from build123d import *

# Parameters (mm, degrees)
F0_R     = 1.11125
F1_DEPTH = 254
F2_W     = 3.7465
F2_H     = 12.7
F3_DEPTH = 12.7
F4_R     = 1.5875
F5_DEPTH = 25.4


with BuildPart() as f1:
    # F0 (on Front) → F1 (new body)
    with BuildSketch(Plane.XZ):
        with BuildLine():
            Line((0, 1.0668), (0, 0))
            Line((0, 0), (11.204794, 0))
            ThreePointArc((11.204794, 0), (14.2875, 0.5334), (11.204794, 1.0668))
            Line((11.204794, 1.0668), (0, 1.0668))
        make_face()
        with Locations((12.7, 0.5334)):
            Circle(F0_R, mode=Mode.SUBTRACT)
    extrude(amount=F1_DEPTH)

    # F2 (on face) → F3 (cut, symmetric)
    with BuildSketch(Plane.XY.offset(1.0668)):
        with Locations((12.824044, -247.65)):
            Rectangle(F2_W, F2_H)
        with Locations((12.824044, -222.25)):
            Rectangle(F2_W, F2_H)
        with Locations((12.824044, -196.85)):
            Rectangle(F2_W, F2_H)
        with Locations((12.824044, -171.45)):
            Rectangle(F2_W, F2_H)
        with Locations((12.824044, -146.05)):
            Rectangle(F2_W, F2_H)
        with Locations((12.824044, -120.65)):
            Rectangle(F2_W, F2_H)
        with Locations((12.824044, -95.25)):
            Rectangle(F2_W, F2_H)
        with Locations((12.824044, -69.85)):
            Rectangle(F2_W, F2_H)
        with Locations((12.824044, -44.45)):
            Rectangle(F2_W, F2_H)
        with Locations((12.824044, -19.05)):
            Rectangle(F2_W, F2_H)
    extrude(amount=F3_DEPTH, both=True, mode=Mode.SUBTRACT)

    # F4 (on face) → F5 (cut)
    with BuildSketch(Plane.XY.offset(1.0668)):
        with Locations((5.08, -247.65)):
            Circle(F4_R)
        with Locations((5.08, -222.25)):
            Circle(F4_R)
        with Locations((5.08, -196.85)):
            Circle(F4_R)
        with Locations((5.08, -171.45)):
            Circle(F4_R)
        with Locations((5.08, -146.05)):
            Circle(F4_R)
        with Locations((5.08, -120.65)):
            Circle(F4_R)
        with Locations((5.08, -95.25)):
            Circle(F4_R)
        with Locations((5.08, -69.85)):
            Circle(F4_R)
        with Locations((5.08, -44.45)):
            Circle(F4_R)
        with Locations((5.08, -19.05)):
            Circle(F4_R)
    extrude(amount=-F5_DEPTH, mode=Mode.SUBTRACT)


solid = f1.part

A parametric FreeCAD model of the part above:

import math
import FreeCAD as App
import Part
import Sketcher
from FreeCAD import Vector
Q = App.Units.Quantity


def add_polygon(sketch, points):
    """Adds a closed chain of lines whose ends are joined by coincident constraints."""
    first, n = sketch.GeometryCount, len(points)
    for a, b in zip(points, points[1:] + points[:1]):
        sketch.addGeometry(Part.LineSegment(App.Vector(*a, 0), App.Vector(*b, 0)), False)
    for i in range(n):
        sketch.addConstraint(Sketcher.Constraint("Coincident", first + i, 2, first + (i + 1) % n, 1))

doc = App.newDocument("Part")
body = doc.addObject("PartDesign::Body", "Body")

sketch1 = doc.addObject("Sketcher::SketchObject", "Sketch")
body.addObject(sketch1)
sketch1.AttachmentSupport = (doc.XZ_Plane, [""])
sketch1.MapMode = "FlatFace"
sketch1.addGeometry(Part.LineSegment(Vector(0, 1.1, 0), Vector(0, 0, 0)), False)
sketch1.addGeometry(Part.LineSegment(Vector(0, 0, 0), Vector(11.2, 0, 0)), False)
sketch1.addGeometry(Part.ArcOfCircle(Part.Circle(Vector(12.7, 0.5, 0), Vector(0, 0, 1), 1.6), math.radians(-160), math.radians(160)), False)
sketch1.addGeometry(Part.LineSegment(Vector(11.2, 1.1, 0), Vector(0, 1.1, 0)), False)
sketch1.addGeometry(Part.Circle(Vector(12.7, 0.5, 0), Vector(0, 0, 1), 1.1), False)
sketch1.addConstraint(Sketcher.Constraint("Coincident", 0, 2, 1, 1))
sketch1.addConstraint(Sketcher.Constraint("Coincident", 1, 2, 2, 1))
sketch1.addConstraint(Sketcher.Constraint("Coincident", 2, 2, 3, 1))
sketch1.addConstraint(Sketcher.Constraint("Coincident", 3, 2, 0, 1))
sketch1.addConstraint(Sketcher.Constraint("Vertical", 0))
sketch1.addConstraint(Sketcher.Constraint("Horizontal", 1))
sketch1.addConstraint(Sketcher.Constraint("Horizontal", 3))
sketch1.addConstraint(Sketcher.Constraint("Coincident", 0, 2, -1, 1))
sketch1.addConstraint(Sketcher.Constraint("Coincident", 4, 3, 2, 3))
sketch1.addConstraint(Sketcher.Constraint("Vertical", 1, 2, 2, 2))
sketch1.addConstraint(Sketcher.Constraint("Radius", 2, Q("0.0625 in")))
sketch1.addConstraint(Sketcher.Constraint("Diameter", 4, Q("0.0875 in")))
sketch1.addConstraint(Sketcher.Constraint("DistanceX", -1, 1, 2, 3, Q("0.5 in")))
sketch1.addConstraint(Sketcher.Constraint("DistanceY", 0, 2, 0, 1, Q("0.042 in")))
pad1 = doc.addObject("PartDesign::Pad", "Pad")
body.addObject(pad1)
pad1.Profile = sketch1
pad1.Length = Q("10 in")

sketch2 = doc.addObject("Sketcher::SketchObject", "Sketch001")
body.addObject(sketch2)
sketch2.AttachmentSupport = (doc.XY_Plane, [""])
sketch2.MapMode = "FlatFace"
sketch2.AttachmentOffset = App.Placement(Vector(0, 0, 0.042 * 25.4), App.Rotation())
add_polygon(sketch2, [(11, -241.3), (11, -254), (14.7, -254), (14.7, -241.3)])
add_polygon(sketch2, [(11, -215.9), (11, -228.6), (14.7, -228.6), (14.7, -215.9)])
add_polygon(sketch2, [(11, -190.5), (11, -203.2), (14.7, -203.2), (14.7, -190.5)])
add_polygon(sketch2, [(11, -165.1), (11, -177.8), (14.7, -177.8), (14.7, -165.1)])
add_polygon(sketch2, [(11, -139.7), (11, -152.4), (14.7, -152.4), (14.7, -139.7)])
add_polygon(sketch2, [(11, -114.3), (11, -127), (14.7, -127), (14.7, -114.3)])
add_polygon(sketch2, [(11, -88.9), (11, -101.6), (14.7, -101.6), (14.7, -88.9)])
add_polygon(sketch2, [(11, -63.5), (11, -76.2), (14.7, -76.2), (14.7, -63.5)])
add_polygon(sketch2, [(11, -38.1), (11, -50.8), (14.7, -50.8), (14.7, -38.1)])
add_polygon(sketch2, [(11, -12.7), (11, -25.4), (14.7, -25.4), (14.7, -12.7)])
sketch2.addConstraint(Sketcher.Constraint("Vertical", 0))
sketch2.addConstraint(Sketcher.Constraint("Horizontal", 1))
sketch2.addConstraint(Sketcher.Constraint("Vertical", 2))
sketch2.addConstraint(Sketcher.Constraint("Horizontal", 3))
sketch2.addConstraint(Sketcher.Constraint("Vertical", 4))
sketch2.addConstraint(Sketcher.Constraint("Horizontal", 5))
sketch2.addConstraint(Sketcher.Constraint("Vertical", 6))
sketch2.addConstraint(Sketcher.Constraint("Horizontal", 7))
sketch2.addConstraint(Sketcher.Constraint("Vertical", 8))
sketch2.addConstraint(Sketcher.Constraint("Horizontal", 9))
sketch2.addConstraint(Sketcher.Constraint("Vertical", 10))
sketch2.addConstraint(Sketcher.Constraint("Horizontal", 11))
sketch2.addConstraint(Sketcher.Constraint("Vertical", 12))
sketch2.addConstraint(Sketcher.Constraint("Horizontal", 13))
sketch2.addConstraint(Sketcher.Constraint("Vertical", 14))
sketch2.addConstraint(Sketcher.Constraint("Horizontal", 15))
sketch2.addConstraint(Sketcher.Constraint("Vertical", 16))
sketch2.addConstraint(Sketcher.Constraint("Horizontal", 17))
sketch2.addConstraint(Sketcher.Constraint("Vertical", 18))
sketch2.addConstraint(Sketcher.Constraint("Horizontal", 19))
sketch2.addConstraint(Sketcher.Constraint("Vertical", 20))
sketch2.addConstraint(Sketcher.Constraint("Horizontal", 21))
sketch2.addConstraint(Sketcher.Constraint("Vertical", 22))
sketch2.addConstraint(Sketcher.Constraint("Horizontal", 23))
sketch2.addConstraint(Sketcher.Constraint("Vertical", 24))
sketch2.addConstraint(Sketcher.Constraint("Horizontal", 25))
sketch2.addConstraint(Sketcher.Constraint("Vertical", 26))
sketch2.addConstraint(Sketcher.Constraint("Horizontal", 27))
sketch2.addConstraint(Sketcher.Constraint("Vertical", 28))
sketch2.addConstraint(Sketcher.Constraint("Horizontal", 29))
sketch2.addConstraint(Sketcher.Constraint("Vertical", 30))
sketch2.addConstraint(Sketcher.Constraint("Horizontal", 31))
sketch2.addConstraint(Sketcher.Constraint("Vertical", 32))
sketch2.addConstraint(Sketcher.Constraint("Horizontal", 33))
sketch2.addConstraint(Sketcher.Constraint("Vertical", 34))
sketch2.addConstraint(Sketcher.Constraint("Horizontal", 35))
sketch2.addConstraint(Sketcher.Constraint("Vertical", 36))
sketch2.addConstraint(Sketcher.Constraint("Horizontal", 37))
sketch2.addConstraint(Sketcher.Constraint("Vertical", 38))
sketch2.addConstraint(Sketcher.Constraint("Horizontal", 39))
sketch2.addConstraint(Sketcher.Constraint("Vertical", 3, 2, 4, 2))
sketch2.addConstraint(Sketcher.Constraint("Vertical", 2, 2, 5, 2))
sketch2.addConstraint(Sketcher.Constraint("Vertical", 7, 2, 8, 2))
sketch2.addConstraint(Sketcher.Constraint("Vertical", 6, 2, 9, 2))
sketch2.addConstraint(Sketcher.Constraint("Vertical", 11, 2, 12, 2))
sketch2.addConstraint(Sketcher.Constraint("Vertical", 10, 2, 13, 2))
sketch2.addConstraint(Sketcher.Constraint("Vertical", 15, 2, 16, 2))
sketch2.addConstraint(Sketcher.Constraint("Vertical", 14, 2, 17, 2))
sketch2.addConstraint(Sketcher.Constraint("Vertical", 19, 2, 20, 2))
sketch2.addConstraint(Sketcher.Constraint("Vertical", 18, 2, 21, 2))
sketch2.addConstraint(Sketcher.Constraint("Vertical", 23, 2, 24, 2))
sketch2.addConstraint(Sketcher.Constraint("Vertical", 22, 2, 25, 2))
sketch2.addConstraint(Sketcher.Constraint("Vertical", 27, 2, 28, 2))
sketch2.addConstraint(Sketcher.Constraint("Vertical", 26, 2, 29, 2))
sketch2.addConstraint(Sketcher.Constraint("Vertical", 31, 2, 32, 2))
sketch2.addConstraint(Sketcher.Constraint("Vertical", 30, 2, 33, 2))
sketch2.addConstraint(Sketcher.Constraint("Vertical", 35, 2, 36, 2))
sketch2.addConstraint(Sketcher.Constraint("Vertical", 34, 2, 37, 2))
sketch2.addConstraint(Sketcher.Constraint("Equal", 2, 4))
sketch2.addConstraint(Sketcher.Constraint("Equal", 6, 8))
sketch2.addConstraint(Sketcher.Constraint("Equal", 10, 12))
sketch2.addConstraint(Sketcher.Constraint("Equal", 14, 16))
sketch2.addConstraint(Sketcher.Constraint("Equal", 18, 20))
sketch2.addConstraint(Sketcher.Constraint("Equal", 22, 24))
sketch2.addConstraint(Sketcher.Constraint("Equal", 26, 28))
sketch2.addConstraint(Sketcher.Constraint("Equal", 30, 32))
sketch2.addConstraint(Sketcher.Constraint("Equal", 34, 36))
sketch2.addConstraint(Sketcher.Constraint("DistanceY", 0, 2, 0, 1, Q("0.5 in")))
sketch2.addConstraint(Sketcher.Constraint("DistanceY", 0, 2, -1, 1, Q("10 in")))
sketch2.addConstraint(Sketcher.Constraint("DistanceY", 4, 2, -1, 1, Q("9 in")))
sketch2.addConstraint(Sketcher.Constraint("DistanceY", 8, 2, -1, 1, Q("8 in")))
sketch2.addConstraint(Sketcher.Constraint("DistanceY", 12, 2, -1, 1, Q("7 in")))
sketch2.addConstraint(Sketcher.Constraint("DistanceY", 16, 2, -1, 1, Q("6 in")))
sketch2.addConstraint(Sketcher.Constraint("DistanceY", 20, 2, -1, 1, Q("5 in")))
sketch2.addConstraint(Sketcher.Constraint("DistanceY", 24, 2, -1, 1, Q("4 in")))
sketch2.addConstraint(Sketcher.Constraint("DistanceY", 28, 2, -1, 1, Q("3 in")))
sketch2.addConstraint(Sketcher.Constraint("DistanceY", 32, 2, -1, 1, Q("2 in")))
sketch2.addConstraint(Sketcher.Constraint("DistanceY", 36, 2, -1, 1, Q("1 in")))
sketch2.addConstraint(Sketcher.Constraint("DistanceX", 1, 1, 1, 2, Q("0.1475 in")))
sketch2.addConstraint(Sketcher.Constraint("DistanceX", -1, 1, 0, 2, 10.950794))
pocket1 = doc.addObject("PartDesign::Pocket", "Pocket")
body.addObject(pocket1)
pocket1.Profile = sketch2
pocket1.Length = Q("1 in")
pocket1.Midplane = True

sketch3 = doc.addObject("Sketcher::SketchObject", "Sketch002")
body.addObject(sketch3)
sketch3.AttachmentSupport = (doc.XY_Plane, [""])
sketch3.MapMode = "FlatFace"
sketch3.AttachmentOffset = App.Placement(Vector(0, 0, 0.042 * 25.4), App.Rotation())
sketch3.addGeometry(Part.Circle(Vector(5.1, -247.7, 0), Vector(0, 0, 1), 1.6), False)
sketch3.addGeometry(Part.Circle(Vector(5.1, -222.2, 0), Vector(0, 0, 1), 1.6), False)
sketch3.addGeometry(Part.Circle(Vector(5.1, -196.8, 0), Vector(0, 0, 1), 1.6), False)
sketch3.addGeometry(Part.Circle(Vector(5.1, -171.4, 0), Vector(0, 0, 1), 1.6), False)
sketch3.addGeometry(Part.Circle(Vector(5.1, -146.1, 0), Vector(0, 0, 1), 1.6), False)
sketch3.addGeometry(Part.Circle(Vector(5.1, -120.7, 0), Vector(0, 0, 1), 1.6), False)
sketch3.addGeometry(Part.Circle(Vector(5.1, -95.2, 0), Vector(0, 0, 1), 1.6), False)
sketch3.addGeometry(Part.Circle(Vector(5.1, -69.8, 0), Vector(0, 0, 1), 1.6), False)
sketch3.addGeometry(Part.Circle(Vector(5.1, -44.5, 0), Vector(0, 0, 1), 1.6), False)
sketch3.addGeometry(Part.Circle(Vector(5.1, -19.1, 0), Vector(0, 0, 1), 1.6), False)
sketch3.addConstraint(Sketcher.Constraint("Equal", 0, 1))
sketch3.addConstraint(Sketcher.Constraint("Equal", 1, 2))
sketch3.addConstraint(Sketcher.Constraint("Equal", 2, 3))
sketch3.addConstraint(Sketcher.Constraint("Equal", 3, 4))
sketch3.addConstraint(Sketcher.Constraint("Equal", 4, 5))
sketch3.addConstraint(Sketcher.Constraint("Equal", 5, 6))
sketch3.addConstraint(Sketcher.Constraint("Equal", 6, 7))
sketch3.addConstraint(Sketcher.Constraint("Equal", 7, 8))
sketch3.addConstraint(Sketcher.Constraint("Equal", 8, 9))
sketch3.addConstraint(Sketcher.Constraint("Vertical", 0, 3, 1, 3))
sketch3.addConstraint(Sketcher.Constraint("Vertical", 1, 3, 2, 3))
sketch3.addConstraint(Sketcher.Constraint("Vertical", 2, 3, 3, 3))
sketch3.addConstraint(Sketcher.Constraint("Vertical", 3, 3, 4, 3))
sketch3.addConstraint(Sketcher.Constraint("Vertical", 4, 3, 5, 3))
sketch3.addConstraint(Sketcher.Constraint("Vertical", 5, 3, 6, 3))
sketch3.addConstraint(Sketcher.Constraint("Vertical", 6, 3, 7, 3))
sketch3.addConstraint(Sketcher.Constraint("Vertical", 7, 3, 8, 3))
sketch3.addConstraint(Sketcher.Constraint("Vertical", 8, 3, 9, 3))
sketch3.addConstraint(Sketcher.Constraint("Diameter", 0, Q("0.125 in")))
sketch3.addConstraint(Sketcher.Constraint("DistanceY", 0, 3, 1, 3, Q("1 in")))
sketch3.addConstraint(Sketcher.Constraint("DistanceY", 1, 3, 2, 3, Q("1 in")))
sketch3.addConstraint(Sketcher.Constraint("DistanceY", 2, 3, 3, 3, Q("1 in")))
sketch3.addConstraint(Sketcher.Constraint("DistanceY", 3, 3, 4, 3, Q("1 in")))
sketch3.addConstraint(Sketcher.Constraint("DistanceY", 4, 3, 5, 3, Q("1 in")))
sketch3.addConstraint(Sketcher.Constraint("DistanceY", 5, 3, 6, 3, Q("1 in")))
sketch3.addConstraint(Sketcher.Constraint("DistanceY", 6, 3, 7, 3, Q("1 in")))
sketch3.addConstraint(Sketcher.Constraint("DistanceY", 7, 3, 8, 3, Q("1 in")))
sketch3.addConstraint(Sketcher.Constraint("DistanceY", 8, 3, 9, 3, Q("1 in")))
sketch3.addConstraint(Sketcher.Constraint("DistanceX", -1, 1, 0, 3, Q("0.2 in")))
sketch3.addConstraint(Sketcher.Constraint("DistanceY", 0, 3, -1, 1, Q("9.75 in")))
pocket2 = doc.addObject("PartDesign::Pocket", "Pocket001")
body.addObject(pocket2)
pocket2.Profile = sketch3
pocket2.Length = Q("1 in")

doc.recompute()
